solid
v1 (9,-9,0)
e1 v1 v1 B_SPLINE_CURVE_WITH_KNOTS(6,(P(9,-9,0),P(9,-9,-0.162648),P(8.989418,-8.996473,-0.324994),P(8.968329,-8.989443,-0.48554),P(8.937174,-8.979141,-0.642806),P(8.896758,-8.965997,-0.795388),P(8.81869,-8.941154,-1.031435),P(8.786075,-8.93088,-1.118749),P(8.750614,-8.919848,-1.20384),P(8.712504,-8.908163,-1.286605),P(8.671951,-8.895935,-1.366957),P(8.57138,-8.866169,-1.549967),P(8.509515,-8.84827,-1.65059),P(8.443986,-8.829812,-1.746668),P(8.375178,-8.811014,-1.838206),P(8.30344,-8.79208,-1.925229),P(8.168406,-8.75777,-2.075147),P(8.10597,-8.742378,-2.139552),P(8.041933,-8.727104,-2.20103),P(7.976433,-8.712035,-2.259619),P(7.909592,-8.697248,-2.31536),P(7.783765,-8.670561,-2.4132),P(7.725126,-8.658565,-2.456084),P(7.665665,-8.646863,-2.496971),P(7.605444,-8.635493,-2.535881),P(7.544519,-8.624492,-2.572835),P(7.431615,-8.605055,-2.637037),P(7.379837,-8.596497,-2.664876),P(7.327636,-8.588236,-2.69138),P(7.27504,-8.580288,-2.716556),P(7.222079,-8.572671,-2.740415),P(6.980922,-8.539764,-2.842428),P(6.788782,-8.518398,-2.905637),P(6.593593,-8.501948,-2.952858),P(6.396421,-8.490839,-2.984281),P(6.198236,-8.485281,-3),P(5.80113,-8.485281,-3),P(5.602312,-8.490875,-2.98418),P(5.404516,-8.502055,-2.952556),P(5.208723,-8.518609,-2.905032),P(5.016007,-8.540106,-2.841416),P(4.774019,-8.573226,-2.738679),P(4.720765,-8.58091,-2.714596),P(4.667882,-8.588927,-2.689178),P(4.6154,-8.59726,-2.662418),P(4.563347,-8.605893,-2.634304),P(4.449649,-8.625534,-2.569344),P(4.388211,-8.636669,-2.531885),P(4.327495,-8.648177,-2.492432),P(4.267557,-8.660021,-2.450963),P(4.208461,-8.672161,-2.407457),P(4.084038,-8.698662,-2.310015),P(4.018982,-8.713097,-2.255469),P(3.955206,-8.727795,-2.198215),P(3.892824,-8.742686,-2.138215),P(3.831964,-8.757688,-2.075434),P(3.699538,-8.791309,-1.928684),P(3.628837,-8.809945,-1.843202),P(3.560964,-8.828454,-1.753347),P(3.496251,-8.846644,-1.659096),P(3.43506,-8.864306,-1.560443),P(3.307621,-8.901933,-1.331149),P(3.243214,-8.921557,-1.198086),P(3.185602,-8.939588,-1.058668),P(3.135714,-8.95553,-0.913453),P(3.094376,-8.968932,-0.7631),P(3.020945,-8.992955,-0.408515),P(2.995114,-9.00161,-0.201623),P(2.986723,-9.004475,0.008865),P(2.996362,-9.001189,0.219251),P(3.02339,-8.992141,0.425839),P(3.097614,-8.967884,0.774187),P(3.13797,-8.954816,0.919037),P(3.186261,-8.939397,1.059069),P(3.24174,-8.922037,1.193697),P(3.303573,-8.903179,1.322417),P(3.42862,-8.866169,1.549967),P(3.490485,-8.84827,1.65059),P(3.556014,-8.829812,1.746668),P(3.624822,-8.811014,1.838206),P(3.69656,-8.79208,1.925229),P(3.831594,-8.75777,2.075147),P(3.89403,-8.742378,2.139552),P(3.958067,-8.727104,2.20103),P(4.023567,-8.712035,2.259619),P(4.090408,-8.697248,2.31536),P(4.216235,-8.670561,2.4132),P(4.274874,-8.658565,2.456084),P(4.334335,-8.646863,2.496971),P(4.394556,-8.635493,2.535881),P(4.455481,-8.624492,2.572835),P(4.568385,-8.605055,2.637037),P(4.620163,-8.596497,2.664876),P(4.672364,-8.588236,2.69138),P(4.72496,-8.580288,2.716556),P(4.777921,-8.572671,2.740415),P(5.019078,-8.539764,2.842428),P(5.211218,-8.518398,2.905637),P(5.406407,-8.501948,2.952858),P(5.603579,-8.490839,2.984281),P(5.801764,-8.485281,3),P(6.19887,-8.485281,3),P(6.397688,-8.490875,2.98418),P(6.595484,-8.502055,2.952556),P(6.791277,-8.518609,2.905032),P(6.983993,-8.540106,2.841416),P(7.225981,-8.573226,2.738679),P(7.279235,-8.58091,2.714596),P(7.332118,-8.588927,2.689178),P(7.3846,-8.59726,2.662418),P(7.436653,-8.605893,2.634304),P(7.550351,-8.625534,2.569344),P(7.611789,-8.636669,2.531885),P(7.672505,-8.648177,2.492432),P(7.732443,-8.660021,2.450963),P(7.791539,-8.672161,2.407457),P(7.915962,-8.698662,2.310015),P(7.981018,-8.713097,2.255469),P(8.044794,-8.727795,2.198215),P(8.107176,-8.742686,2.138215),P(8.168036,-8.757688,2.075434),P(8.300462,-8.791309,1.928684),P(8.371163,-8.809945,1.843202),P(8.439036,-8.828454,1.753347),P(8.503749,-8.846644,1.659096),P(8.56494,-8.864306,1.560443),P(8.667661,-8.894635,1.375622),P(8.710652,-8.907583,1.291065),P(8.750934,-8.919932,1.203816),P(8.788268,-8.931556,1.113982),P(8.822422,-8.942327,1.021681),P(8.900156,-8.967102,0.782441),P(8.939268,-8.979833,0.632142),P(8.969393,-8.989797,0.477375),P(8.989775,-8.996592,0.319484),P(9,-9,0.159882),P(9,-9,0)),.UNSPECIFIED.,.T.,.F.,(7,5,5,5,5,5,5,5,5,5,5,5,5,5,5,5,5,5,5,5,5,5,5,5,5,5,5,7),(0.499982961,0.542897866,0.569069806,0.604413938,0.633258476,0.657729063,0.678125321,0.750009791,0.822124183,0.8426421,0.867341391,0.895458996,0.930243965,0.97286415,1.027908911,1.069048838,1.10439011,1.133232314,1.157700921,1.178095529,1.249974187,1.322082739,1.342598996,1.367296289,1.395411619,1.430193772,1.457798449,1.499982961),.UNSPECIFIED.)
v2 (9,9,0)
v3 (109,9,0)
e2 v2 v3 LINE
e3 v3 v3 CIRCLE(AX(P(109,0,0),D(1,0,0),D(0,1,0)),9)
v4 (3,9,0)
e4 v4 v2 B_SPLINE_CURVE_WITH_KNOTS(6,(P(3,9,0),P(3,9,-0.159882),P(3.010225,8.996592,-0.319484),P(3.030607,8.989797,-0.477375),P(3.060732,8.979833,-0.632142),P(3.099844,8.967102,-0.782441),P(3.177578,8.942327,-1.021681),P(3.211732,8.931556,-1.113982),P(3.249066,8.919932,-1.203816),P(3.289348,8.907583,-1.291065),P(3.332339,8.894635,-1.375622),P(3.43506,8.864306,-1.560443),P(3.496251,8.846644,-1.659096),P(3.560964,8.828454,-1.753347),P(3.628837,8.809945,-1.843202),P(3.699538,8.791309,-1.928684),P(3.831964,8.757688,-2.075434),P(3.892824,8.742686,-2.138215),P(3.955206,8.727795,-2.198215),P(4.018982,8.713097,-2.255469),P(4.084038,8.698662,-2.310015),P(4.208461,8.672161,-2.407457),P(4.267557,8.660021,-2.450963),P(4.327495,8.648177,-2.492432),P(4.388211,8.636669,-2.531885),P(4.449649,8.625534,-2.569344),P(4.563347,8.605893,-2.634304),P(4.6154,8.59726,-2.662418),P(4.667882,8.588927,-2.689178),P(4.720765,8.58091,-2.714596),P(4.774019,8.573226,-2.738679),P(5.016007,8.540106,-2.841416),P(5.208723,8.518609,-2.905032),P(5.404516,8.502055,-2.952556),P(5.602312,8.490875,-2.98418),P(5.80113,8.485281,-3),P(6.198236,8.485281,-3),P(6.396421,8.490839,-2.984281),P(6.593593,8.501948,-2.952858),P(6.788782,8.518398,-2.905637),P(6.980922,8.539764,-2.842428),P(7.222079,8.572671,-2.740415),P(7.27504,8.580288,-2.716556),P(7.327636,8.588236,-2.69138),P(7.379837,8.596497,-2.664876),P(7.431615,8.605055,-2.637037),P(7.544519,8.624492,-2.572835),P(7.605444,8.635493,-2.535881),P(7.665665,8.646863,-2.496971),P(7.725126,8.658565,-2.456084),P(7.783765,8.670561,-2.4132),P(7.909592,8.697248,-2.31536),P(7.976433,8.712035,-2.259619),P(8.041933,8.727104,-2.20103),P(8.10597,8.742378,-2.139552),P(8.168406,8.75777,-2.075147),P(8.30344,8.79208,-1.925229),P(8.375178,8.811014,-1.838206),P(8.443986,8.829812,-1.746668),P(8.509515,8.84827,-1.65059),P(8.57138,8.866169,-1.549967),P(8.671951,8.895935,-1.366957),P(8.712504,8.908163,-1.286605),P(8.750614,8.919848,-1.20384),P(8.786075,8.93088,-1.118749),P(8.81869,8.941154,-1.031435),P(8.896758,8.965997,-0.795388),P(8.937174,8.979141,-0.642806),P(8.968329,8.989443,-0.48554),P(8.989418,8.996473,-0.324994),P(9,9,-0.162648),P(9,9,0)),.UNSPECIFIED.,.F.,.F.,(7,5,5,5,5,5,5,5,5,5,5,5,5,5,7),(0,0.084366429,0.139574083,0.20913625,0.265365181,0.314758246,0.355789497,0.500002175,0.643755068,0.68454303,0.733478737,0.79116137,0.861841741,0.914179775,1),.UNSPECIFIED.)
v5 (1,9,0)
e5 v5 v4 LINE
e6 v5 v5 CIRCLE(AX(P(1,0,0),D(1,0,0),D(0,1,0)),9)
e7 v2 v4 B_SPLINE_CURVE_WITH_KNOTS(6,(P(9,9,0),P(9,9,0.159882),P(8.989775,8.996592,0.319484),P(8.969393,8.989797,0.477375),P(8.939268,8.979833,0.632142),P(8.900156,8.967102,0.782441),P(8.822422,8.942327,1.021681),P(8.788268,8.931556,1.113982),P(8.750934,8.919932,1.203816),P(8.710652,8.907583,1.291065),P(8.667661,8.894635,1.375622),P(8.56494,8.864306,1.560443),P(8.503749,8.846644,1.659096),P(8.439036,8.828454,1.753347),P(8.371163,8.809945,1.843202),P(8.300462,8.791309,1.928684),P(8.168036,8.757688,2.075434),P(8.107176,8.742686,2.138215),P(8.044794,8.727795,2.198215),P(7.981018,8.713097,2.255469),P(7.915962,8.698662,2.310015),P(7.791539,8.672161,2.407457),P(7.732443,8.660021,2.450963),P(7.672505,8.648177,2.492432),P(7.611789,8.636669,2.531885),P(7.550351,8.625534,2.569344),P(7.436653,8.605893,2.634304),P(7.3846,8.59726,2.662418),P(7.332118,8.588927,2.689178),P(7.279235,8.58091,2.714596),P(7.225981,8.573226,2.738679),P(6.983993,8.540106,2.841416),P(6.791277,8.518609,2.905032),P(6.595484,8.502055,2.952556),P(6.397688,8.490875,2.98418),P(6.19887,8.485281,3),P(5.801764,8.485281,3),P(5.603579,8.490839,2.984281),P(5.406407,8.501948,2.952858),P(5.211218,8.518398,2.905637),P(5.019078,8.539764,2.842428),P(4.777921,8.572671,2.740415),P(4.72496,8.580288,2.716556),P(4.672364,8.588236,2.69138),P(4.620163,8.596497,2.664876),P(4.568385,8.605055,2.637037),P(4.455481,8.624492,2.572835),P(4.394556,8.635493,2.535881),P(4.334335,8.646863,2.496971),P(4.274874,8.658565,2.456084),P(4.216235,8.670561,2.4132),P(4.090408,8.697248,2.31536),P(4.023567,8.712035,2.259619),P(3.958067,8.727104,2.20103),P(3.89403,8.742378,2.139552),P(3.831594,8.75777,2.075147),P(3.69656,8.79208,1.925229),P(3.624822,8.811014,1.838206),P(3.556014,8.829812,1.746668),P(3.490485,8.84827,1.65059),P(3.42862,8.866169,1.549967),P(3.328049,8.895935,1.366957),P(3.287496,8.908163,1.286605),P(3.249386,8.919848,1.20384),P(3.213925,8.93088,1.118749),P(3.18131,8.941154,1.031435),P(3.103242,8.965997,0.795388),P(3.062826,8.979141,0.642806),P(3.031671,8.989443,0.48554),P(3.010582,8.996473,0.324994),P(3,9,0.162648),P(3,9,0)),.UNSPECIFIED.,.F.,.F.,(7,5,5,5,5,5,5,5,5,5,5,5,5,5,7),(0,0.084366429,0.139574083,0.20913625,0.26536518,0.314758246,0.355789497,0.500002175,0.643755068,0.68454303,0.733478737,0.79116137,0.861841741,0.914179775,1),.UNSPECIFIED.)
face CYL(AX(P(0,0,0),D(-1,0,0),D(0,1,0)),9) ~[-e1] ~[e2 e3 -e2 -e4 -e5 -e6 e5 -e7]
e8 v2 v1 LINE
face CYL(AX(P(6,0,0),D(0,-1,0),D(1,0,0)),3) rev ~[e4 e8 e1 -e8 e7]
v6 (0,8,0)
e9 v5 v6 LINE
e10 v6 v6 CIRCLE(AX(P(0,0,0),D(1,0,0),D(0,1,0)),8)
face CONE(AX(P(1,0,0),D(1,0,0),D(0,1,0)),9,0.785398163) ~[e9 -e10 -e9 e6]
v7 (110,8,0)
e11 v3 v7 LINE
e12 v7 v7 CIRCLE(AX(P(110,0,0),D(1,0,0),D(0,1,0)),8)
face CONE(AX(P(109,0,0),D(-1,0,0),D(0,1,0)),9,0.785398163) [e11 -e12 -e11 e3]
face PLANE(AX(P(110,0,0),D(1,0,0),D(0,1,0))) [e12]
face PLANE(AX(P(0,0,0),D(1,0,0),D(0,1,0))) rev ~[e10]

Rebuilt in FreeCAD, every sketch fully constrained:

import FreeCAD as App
import Part
import Sketcher

V = App.Vector
Q = App.Units.Quantity


def edges_at(feature, points):
    """Names of the edges that pass closest to the given points."""
    edges = feature.Shape.Edges
    near = lambda p: min(range(len(edges)), key=lambda i: edges[i].distToShape(Part.Vertex(*p))[0])
    return sorted({f"Edge{near(p) + 1}" for p in points})

doc = App.newDocument("Part")
params = doc.addObject("Spreadsheet::Sheet", "Params")
for row, (alias, value) in enumerate([
    ("sketch1_diameter", "18 mm"),
    ("pad1_length", "110 mm"),
    ("chamfer_size", "1 mm"),
    ("sketch2_diameter", "6 mm"),
    ("pocket1_length", "18 mm"),
], start=1):
    params.set(f"A{row}", alias)
    params.set(f"B{row}", "=" + value)
    params.setAlias(f"B{row}", alias)

body = doc.addObject("PartDesign::Body", "Body")

sketch1 = body.newObject("Sketcher::SketchObject", "Sketch")
sketch1.AttachmentSupport = (doc.getObject("YZ_Plane"), [""])
sketch1.MapMode = "FlatFace"
sketch1.addGeometry(Part.Circle(V(0, 0, 0), V(0, 0, 1), 9), False)
sketch1.addConstraint(Sketcher.Constraint("Coincident", 0, 3, -1, 1))
sketch1.addConstraint(Sketcher.Constraint("Diameter", 0, Q("18 mm")))
sketch1.setExpression("Constraints[1]", "Params.sketch1_diameter")
pad1 = body.newObject("PartDesign::Pad", "Pad")
pad1.Profile = sketch1
pad1.setExpression("Length", "Params.pad1_length")
doc.recompute()

chamfer = body.newObject("PartDesign::Chamfer", "Chamfer")
chamfer.Base = (pad1, edges_at(pad1, [(110, -9, 0), (0, -9, 0)]))
chamfer.setExpression("Size", "Params.chamfer_size")

sketch2 = body.newObject("Sketcher::SketchObject", "Sketch001")
sketch2.AttachmentSupport = (doc.getObject("XZ_Plane"), [""])
sketch2.MapMode = "FlatFace"
sketch2.addGeometry(Part.Circle(V(6, 0, 0), V(0, 0, 1), 3), False)
sketch2.addConstraint(Sketcher.Constraint("PointOnObject", 0, 3, -1))
sketch2.addConstraint(Sketcher.Constraint("Diameter", 0, Q("6 mm")))
sketch2.addConstraint(Sketcher.Constraint("DistanceX", -1, 1, 0, 3, Q("6 mm")))
sketch2.setExpression("Constraints[1]", "Params.sketch2_diameter")
pocket1 = body.newObject("PartDesign::Pocket", "Pocket")
pocket1.Profile = sketch2
pocket1.setExpression("Length", "Params.pocket1_length")
pocket1.Midplane = True

doc.recompute()
